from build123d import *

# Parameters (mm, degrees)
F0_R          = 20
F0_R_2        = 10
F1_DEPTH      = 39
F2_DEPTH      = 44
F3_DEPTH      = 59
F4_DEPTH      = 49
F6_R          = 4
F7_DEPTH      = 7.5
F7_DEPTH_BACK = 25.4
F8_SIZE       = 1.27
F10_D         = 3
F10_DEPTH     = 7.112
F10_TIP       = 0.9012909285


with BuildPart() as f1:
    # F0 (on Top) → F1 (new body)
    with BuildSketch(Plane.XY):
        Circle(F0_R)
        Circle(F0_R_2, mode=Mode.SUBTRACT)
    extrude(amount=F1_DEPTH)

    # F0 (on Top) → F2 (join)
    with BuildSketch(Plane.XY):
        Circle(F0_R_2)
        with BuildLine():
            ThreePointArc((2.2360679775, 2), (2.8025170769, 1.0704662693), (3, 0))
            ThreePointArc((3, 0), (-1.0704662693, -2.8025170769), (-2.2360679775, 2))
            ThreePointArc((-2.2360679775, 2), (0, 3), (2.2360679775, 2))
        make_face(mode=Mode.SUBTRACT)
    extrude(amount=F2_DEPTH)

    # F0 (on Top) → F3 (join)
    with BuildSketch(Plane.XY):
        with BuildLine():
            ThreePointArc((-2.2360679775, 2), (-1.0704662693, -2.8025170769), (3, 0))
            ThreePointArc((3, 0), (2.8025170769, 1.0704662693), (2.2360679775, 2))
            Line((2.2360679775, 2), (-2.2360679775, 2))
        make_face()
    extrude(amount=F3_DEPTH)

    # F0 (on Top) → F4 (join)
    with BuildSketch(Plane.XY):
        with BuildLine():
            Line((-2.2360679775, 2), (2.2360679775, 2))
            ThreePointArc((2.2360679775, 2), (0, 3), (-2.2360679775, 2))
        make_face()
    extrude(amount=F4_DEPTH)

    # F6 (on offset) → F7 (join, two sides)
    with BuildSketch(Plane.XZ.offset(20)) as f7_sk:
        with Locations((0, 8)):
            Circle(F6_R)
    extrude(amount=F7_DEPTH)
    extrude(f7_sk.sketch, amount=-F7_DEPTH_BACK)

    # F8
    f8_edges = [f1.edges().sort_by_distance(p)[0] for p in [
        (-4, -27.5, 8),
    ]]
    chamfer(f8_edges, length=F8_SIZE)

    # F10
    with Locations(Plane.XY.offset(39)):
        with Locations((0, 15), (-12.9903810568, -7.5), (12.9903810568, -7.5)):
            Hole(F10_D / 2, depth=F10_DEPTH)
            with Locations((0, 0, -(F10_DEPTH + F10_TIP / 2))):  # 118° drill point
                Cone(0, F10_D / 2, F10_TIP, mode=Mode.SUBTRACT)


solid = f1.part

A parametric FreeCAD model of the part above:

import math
import FreeCAD as App
import Part
import Sketcher
from FreeCAD import Vector
Q = App.Units.Quantity


def edges_at(feature, points):
    """Names of the edges that pass closest to the given points."""
    edges = feature.Shape.Edges
    near = lambda p: min(range(len(edges)), key=lambda i: edges[i].distToShape(Part.Vertex(*p))[0])
    return sorted({f"Edge{near(p) + 1}" for p in points})

doc = App.newDocument("Part")
params = doc.addObject("Spreadsheet::Sheet", "Params")
for row, (alias, value) in enumerate([
    ("sketch1_diameter", "40 mm"),
    ("sketch1_diameter2", "20 mm"),
    ("pad1_length", "39 mm"),
    ("sketch2_diameter", "20 mm"),
    ("sketch2_radius", "3 mm"),
    ("pad2_length", "44 mm"),
    ("sketch3_radius", "3 mm"),
    ("pad3_length", "59 mm"),
    ("sketch4_radius", "3 mm"),
    ("pad4_length", "49 mm"),
    ("sketch5_diameter", "8 mm"),
    ("pad5_length", "7.5 mm"),
    ("pad5_length2", "25.4 mm"),
    ("chamfer_size", "1.27 mm"),
    ("sketch6_diameter", "3 mm"),
    ("hole_diameter", "3 mm"),
    ("hole_depth", "7.112 mm"),
], start=1):
    params.set(f"A{row}", alias)
    params.set(f"B{row}", "=" + value)
    params.setAlias(f"B{row}", alias)

body = doc.addObject("PartDesign::Body", "Body")

# Sketch on XY plane
sketch1 = body.newObject("Sketcher::SketchObject", "Sketch")
sketch1.AttachmentSupport = (doc.getObject("XY_Plane"), [""])
sketch1.MapMode = "FlatFace"
sketch1.addGeometry([
    Part.Circle(Vector(0, 0, 0), Vector(0, 0, 1), 20),
    Part.Circle(Vector(0, 0, 0), Vector(0, 0, 1), 10),
], False)
sketch1.addConstraint([
    Sketcher.Constraint("Coincident", 0, 3, -1, 1),
    Sketcher.Constraint("Coincident", 1, 3, -1, 1),
    Sketcher.Constraint("Diameter", 0, Q("40 mm")),
    Sketcher.Constraint("Diameter", 1, Q("20 mm")),
])
sketch1.setExpression("Constraints[2]", "Params.sketch1_diameter")
sketch1.setExpression("Constraints[3]", "Params.sketch1_diameter2")
pad1 = body.newObject("PartDesign::Pad", "Pad")
pad1.Profile = sketch1
pad1.setExpression("Length", "Params.pad1_length")

# Sketch on XY plane
sketch2 = body.newObject("Sketcher::SketchObject", "Sketch001")
sketch2.AttachmentSupport = (doc.getObject("XY_Plane"), [""])
sketch2.MapMode = "FlatFace"
sketch2.addGeometry([
    Part.Circle(Vector(0, 0, 0), Vector(0, 0, 1), 10),
    Part.ArcOfCircle(Part.Circle(Vector(0, 0, 0), Vector(0, 0, 1), 3), math.radians(42), math.radians(360)),
    Part.ArcOfCircle(Part.Circle(Vector(0, 0, 0), Vector(0, 0, 1), 3), math.radians(0), math.radians(42)),
], False)
sketch2.addConstraint([
    Sketcher.Constraint("Tangent", 1, 1, 2, 2),
    Sketcher.Constraint("Coincident", 2, 1, 1, 2),
    Sketcher.Constraint("Coincident", 0, 3, -1, 1),
    Sketcher.Constraint("Coincident", 1, 3, -1, 1),
    Sketcher.Constraint("PointOnObject", 2, 1, -1),
    Sketcher.Constraint("Diameter", 0, Q("20 mm")),
    Sketcher.Constraint("Radius", 1, Q("3 mm")),
    Sketcher.Constraint("DistanceY", -1, 1, 1, 1, Q("2 mm")),
])
sketch2.setExpression("Constraints[5]", "Params.sketch2_diameter")
sketch2.setExpression("Constraints[6]", "Params.sketch2_radius")
pad2 = body.newObject("PartDesign::Pad", "Pad001")
pad2.Profile = sketch2
pad2.setExpression("Length", "Params.pad2_length")

# Sketch on XY plane
sketch3 = body.newObject("Sketcher::SketchObject", "Sketch002")
sketch3.AttachmentSupport = (doc.getObject("XY_Plane"), [""])
sketch3.MapMode = "FlatFace"
sketch3.addGeometry([
    Part.ArcOfCircle(Part.Circle(Vector(0, 0, 0), Vector(0, 0, 1), 3), math.radians(138), math.radians(360)),
    Part.ArcOfCircle(Part.Circle(Vector(0, 0, 0), Vector(0, 0, 1), 3), math.radians(0), math.radians(42)),
    Part.LineSegment(Vector(2.2, 2, 0), Vector(-2.2, 2, 0)),
], False)
sketch3.addConstraint([
    Sketcher.Constraint("Tangent", 0, 2, 1, 1),
    Sketcher.Constraint("Coincident", 1, 2, 2, 1),
    Sketcher.Constraint("Coincident", 2, 2, 0, 1),
    Sketcher.Constraint("Horizontal", 2),
    Sketcher.Constraint("Coincident", 0, 3, -1, 1),
    Sketcher.Constraint("Equal", 0, 1),
    Sketcher.Constraint("PointOnObject", 0, 2, -1),
    Sketcher.Constraint("Radius", 0, Q("3 mm")),
    Sketcher.Constraint("DistanceY", -1, 1, 1, 2, Q("2 mm")),
])
sketch3.setExpression("Constraints[7]", "Params.sketch3_radius")
pad3 = body.newObject("PartDesign::Pad", "Pad002")
pad3.Profile = sketch3
pad3.setExpression("Length", "Params.pad3_length")

# Sketch on XY plane
sketch4 = body.newObject("Sketcher::SketchObject", "Sketch003")
sketch4.AttachmentSupport = (doc.getObject("XY_Plane"), [""])
sketch4.MapMode = "FlatFace"
sketch4.addGeometry([
    Part.LineSegment(Vector(-2.2, 2, 0), Vector(2.2, 2, 0)),
    Part.ArcOfCircle(Part.Circle(Vector(0, 0, 0), Vector(0, 0, 1), 3), math.radians(42), math.radians(138)),
], False)
sketch4.addConstraint([
    Sketcher.Constraint("Coincident", 0, 1, 1, 2),
    Sketcher.Constraint("Coincident", 1, 1, 0, 2),
    Sketcher.Constraint("Horizontal", 0),
    Sketcher.Constraint("Coincident", 1, 3, -1, 1),
    Sketcher.Constraint("Radius", 1, Q("3 mm")),
    Sketcher.Constraint("DistanceY", -1, 1, 0, 1, Q("2 mm")),
])
sketch4.setExpression("Constraints[4]", "Params.sketch4_radius")
pad4 = body.newObject("PartDesign::Pad", "Pad003")
pad4.Profile = sketch4
pad4.setExpression("Length", "Params.pad4_length")

# Sketch on XZ plane
sketch5 = body.newObject("Sketcher::SketchObject", "Sketch004")
sketch5.AttachmentSupport = (doc.getObject("XZ_Plane"), [""])
sketch5.MapMode = "FlatFace"
sketch5.AttachmentOffset = App.Placement(Vector(0, 0, 20), App.Rotation())
sketch5.addGeometry(Part.Circle(Vector(0, 8, 0), Vector(0, 0, 1), 4), False)
sketch5.addConstraint([
    Sketcher.Constraint("PointOnObject", 0, 3, -2),
    Sketcher.Constraint("Diameter", 0, Q("8 mm")),
    Sketcher.Constraint("DistanceY", -1, 1, 0, 3, Q("8 mm")),
])
sketch5.setExpression("Constraints[1]", "Params.sketch5_diameter")
pad5 = body.newObject("PartDesign::Pad", "Pad004")
pad5.Profile = sketch5
pad5.Type = "TwoLengths"
pad5.setExpression("Length", "Params.pad5_length")
pad5.setExpression("Length2", "Params.pad5_length2")
doc.recompute()

chamfer = body.newObject("PartDesign::Chamfer", "Chamfer")
chamfer.Base = (pad5, edges_at(pad5, [(-4, -27.5, 8)]))
chamfer.setExpression("Size", "Params.chamfer_size")

# Sketch on XY plane
sketch6 = body.newObject("Sketcher::SketchObject", "Sketch005")
sketch6.AttachmentSupport = (doc.getObject("XY_Plane"), [""])
sketch6.MapMode = "FlatFace"
sketch6.AttachmentOffset = App.Placement(Vector(0, 0, 39), App.Rotation())
sketch6.addGeometry([
    Part.Circle(Vector(0, 15, 0), Vector(0, 0, 1), 1.5),
    Part.Circle(Vector(-13, -7.5, 0), Vector(0, 0, 1), 1.5),
    Part.Circle(Vector(13, -7.5, 0), Vector(0, 0, 1), 1.5),
], False)
sketch6.addConstraint([
    Sketcher.Constraint("Equal", 0, 1),
    Sketcher.Constraint("Equal", 1, 2),
    Sketcher.Constraint("Symmetric", 1, 3, 2, 3, -2),
    Sketcher.Constraint("PointOnObject", 0, 3, -2),
    Sketcher.Constraint("Diameter", 0, Q("3 mm")),
    Sketcher.Constraint("DistanceY", -1, 1, 0, 3, Q("15 mm")),
    Sketcher.Constraint("DistanceY", 1, 3, -1, 1, Q("7.5 mm")),
    Sketcher.Constraint("DistanceX", 1, 3, -1, 1, Q("12.990381 mm")),
])
sketch6.setExpression("Constraints[4]", "Params.sketch6_diameter")
doc.recompute()
hole = body.newObject("PartDesign::Hole", "Hole")
hole.Profile = sketch6
hole.ThreadType = "None"
hole.setExpression("Diameter", "Params.hole_diameter")
hole.DepthType = "Dimension"
hole.setExpression("Depth", "Params.hole_depth")
hole.DrillPoint = "Angled"
hole.DrillPointAngle = 118

doc.recompute()
